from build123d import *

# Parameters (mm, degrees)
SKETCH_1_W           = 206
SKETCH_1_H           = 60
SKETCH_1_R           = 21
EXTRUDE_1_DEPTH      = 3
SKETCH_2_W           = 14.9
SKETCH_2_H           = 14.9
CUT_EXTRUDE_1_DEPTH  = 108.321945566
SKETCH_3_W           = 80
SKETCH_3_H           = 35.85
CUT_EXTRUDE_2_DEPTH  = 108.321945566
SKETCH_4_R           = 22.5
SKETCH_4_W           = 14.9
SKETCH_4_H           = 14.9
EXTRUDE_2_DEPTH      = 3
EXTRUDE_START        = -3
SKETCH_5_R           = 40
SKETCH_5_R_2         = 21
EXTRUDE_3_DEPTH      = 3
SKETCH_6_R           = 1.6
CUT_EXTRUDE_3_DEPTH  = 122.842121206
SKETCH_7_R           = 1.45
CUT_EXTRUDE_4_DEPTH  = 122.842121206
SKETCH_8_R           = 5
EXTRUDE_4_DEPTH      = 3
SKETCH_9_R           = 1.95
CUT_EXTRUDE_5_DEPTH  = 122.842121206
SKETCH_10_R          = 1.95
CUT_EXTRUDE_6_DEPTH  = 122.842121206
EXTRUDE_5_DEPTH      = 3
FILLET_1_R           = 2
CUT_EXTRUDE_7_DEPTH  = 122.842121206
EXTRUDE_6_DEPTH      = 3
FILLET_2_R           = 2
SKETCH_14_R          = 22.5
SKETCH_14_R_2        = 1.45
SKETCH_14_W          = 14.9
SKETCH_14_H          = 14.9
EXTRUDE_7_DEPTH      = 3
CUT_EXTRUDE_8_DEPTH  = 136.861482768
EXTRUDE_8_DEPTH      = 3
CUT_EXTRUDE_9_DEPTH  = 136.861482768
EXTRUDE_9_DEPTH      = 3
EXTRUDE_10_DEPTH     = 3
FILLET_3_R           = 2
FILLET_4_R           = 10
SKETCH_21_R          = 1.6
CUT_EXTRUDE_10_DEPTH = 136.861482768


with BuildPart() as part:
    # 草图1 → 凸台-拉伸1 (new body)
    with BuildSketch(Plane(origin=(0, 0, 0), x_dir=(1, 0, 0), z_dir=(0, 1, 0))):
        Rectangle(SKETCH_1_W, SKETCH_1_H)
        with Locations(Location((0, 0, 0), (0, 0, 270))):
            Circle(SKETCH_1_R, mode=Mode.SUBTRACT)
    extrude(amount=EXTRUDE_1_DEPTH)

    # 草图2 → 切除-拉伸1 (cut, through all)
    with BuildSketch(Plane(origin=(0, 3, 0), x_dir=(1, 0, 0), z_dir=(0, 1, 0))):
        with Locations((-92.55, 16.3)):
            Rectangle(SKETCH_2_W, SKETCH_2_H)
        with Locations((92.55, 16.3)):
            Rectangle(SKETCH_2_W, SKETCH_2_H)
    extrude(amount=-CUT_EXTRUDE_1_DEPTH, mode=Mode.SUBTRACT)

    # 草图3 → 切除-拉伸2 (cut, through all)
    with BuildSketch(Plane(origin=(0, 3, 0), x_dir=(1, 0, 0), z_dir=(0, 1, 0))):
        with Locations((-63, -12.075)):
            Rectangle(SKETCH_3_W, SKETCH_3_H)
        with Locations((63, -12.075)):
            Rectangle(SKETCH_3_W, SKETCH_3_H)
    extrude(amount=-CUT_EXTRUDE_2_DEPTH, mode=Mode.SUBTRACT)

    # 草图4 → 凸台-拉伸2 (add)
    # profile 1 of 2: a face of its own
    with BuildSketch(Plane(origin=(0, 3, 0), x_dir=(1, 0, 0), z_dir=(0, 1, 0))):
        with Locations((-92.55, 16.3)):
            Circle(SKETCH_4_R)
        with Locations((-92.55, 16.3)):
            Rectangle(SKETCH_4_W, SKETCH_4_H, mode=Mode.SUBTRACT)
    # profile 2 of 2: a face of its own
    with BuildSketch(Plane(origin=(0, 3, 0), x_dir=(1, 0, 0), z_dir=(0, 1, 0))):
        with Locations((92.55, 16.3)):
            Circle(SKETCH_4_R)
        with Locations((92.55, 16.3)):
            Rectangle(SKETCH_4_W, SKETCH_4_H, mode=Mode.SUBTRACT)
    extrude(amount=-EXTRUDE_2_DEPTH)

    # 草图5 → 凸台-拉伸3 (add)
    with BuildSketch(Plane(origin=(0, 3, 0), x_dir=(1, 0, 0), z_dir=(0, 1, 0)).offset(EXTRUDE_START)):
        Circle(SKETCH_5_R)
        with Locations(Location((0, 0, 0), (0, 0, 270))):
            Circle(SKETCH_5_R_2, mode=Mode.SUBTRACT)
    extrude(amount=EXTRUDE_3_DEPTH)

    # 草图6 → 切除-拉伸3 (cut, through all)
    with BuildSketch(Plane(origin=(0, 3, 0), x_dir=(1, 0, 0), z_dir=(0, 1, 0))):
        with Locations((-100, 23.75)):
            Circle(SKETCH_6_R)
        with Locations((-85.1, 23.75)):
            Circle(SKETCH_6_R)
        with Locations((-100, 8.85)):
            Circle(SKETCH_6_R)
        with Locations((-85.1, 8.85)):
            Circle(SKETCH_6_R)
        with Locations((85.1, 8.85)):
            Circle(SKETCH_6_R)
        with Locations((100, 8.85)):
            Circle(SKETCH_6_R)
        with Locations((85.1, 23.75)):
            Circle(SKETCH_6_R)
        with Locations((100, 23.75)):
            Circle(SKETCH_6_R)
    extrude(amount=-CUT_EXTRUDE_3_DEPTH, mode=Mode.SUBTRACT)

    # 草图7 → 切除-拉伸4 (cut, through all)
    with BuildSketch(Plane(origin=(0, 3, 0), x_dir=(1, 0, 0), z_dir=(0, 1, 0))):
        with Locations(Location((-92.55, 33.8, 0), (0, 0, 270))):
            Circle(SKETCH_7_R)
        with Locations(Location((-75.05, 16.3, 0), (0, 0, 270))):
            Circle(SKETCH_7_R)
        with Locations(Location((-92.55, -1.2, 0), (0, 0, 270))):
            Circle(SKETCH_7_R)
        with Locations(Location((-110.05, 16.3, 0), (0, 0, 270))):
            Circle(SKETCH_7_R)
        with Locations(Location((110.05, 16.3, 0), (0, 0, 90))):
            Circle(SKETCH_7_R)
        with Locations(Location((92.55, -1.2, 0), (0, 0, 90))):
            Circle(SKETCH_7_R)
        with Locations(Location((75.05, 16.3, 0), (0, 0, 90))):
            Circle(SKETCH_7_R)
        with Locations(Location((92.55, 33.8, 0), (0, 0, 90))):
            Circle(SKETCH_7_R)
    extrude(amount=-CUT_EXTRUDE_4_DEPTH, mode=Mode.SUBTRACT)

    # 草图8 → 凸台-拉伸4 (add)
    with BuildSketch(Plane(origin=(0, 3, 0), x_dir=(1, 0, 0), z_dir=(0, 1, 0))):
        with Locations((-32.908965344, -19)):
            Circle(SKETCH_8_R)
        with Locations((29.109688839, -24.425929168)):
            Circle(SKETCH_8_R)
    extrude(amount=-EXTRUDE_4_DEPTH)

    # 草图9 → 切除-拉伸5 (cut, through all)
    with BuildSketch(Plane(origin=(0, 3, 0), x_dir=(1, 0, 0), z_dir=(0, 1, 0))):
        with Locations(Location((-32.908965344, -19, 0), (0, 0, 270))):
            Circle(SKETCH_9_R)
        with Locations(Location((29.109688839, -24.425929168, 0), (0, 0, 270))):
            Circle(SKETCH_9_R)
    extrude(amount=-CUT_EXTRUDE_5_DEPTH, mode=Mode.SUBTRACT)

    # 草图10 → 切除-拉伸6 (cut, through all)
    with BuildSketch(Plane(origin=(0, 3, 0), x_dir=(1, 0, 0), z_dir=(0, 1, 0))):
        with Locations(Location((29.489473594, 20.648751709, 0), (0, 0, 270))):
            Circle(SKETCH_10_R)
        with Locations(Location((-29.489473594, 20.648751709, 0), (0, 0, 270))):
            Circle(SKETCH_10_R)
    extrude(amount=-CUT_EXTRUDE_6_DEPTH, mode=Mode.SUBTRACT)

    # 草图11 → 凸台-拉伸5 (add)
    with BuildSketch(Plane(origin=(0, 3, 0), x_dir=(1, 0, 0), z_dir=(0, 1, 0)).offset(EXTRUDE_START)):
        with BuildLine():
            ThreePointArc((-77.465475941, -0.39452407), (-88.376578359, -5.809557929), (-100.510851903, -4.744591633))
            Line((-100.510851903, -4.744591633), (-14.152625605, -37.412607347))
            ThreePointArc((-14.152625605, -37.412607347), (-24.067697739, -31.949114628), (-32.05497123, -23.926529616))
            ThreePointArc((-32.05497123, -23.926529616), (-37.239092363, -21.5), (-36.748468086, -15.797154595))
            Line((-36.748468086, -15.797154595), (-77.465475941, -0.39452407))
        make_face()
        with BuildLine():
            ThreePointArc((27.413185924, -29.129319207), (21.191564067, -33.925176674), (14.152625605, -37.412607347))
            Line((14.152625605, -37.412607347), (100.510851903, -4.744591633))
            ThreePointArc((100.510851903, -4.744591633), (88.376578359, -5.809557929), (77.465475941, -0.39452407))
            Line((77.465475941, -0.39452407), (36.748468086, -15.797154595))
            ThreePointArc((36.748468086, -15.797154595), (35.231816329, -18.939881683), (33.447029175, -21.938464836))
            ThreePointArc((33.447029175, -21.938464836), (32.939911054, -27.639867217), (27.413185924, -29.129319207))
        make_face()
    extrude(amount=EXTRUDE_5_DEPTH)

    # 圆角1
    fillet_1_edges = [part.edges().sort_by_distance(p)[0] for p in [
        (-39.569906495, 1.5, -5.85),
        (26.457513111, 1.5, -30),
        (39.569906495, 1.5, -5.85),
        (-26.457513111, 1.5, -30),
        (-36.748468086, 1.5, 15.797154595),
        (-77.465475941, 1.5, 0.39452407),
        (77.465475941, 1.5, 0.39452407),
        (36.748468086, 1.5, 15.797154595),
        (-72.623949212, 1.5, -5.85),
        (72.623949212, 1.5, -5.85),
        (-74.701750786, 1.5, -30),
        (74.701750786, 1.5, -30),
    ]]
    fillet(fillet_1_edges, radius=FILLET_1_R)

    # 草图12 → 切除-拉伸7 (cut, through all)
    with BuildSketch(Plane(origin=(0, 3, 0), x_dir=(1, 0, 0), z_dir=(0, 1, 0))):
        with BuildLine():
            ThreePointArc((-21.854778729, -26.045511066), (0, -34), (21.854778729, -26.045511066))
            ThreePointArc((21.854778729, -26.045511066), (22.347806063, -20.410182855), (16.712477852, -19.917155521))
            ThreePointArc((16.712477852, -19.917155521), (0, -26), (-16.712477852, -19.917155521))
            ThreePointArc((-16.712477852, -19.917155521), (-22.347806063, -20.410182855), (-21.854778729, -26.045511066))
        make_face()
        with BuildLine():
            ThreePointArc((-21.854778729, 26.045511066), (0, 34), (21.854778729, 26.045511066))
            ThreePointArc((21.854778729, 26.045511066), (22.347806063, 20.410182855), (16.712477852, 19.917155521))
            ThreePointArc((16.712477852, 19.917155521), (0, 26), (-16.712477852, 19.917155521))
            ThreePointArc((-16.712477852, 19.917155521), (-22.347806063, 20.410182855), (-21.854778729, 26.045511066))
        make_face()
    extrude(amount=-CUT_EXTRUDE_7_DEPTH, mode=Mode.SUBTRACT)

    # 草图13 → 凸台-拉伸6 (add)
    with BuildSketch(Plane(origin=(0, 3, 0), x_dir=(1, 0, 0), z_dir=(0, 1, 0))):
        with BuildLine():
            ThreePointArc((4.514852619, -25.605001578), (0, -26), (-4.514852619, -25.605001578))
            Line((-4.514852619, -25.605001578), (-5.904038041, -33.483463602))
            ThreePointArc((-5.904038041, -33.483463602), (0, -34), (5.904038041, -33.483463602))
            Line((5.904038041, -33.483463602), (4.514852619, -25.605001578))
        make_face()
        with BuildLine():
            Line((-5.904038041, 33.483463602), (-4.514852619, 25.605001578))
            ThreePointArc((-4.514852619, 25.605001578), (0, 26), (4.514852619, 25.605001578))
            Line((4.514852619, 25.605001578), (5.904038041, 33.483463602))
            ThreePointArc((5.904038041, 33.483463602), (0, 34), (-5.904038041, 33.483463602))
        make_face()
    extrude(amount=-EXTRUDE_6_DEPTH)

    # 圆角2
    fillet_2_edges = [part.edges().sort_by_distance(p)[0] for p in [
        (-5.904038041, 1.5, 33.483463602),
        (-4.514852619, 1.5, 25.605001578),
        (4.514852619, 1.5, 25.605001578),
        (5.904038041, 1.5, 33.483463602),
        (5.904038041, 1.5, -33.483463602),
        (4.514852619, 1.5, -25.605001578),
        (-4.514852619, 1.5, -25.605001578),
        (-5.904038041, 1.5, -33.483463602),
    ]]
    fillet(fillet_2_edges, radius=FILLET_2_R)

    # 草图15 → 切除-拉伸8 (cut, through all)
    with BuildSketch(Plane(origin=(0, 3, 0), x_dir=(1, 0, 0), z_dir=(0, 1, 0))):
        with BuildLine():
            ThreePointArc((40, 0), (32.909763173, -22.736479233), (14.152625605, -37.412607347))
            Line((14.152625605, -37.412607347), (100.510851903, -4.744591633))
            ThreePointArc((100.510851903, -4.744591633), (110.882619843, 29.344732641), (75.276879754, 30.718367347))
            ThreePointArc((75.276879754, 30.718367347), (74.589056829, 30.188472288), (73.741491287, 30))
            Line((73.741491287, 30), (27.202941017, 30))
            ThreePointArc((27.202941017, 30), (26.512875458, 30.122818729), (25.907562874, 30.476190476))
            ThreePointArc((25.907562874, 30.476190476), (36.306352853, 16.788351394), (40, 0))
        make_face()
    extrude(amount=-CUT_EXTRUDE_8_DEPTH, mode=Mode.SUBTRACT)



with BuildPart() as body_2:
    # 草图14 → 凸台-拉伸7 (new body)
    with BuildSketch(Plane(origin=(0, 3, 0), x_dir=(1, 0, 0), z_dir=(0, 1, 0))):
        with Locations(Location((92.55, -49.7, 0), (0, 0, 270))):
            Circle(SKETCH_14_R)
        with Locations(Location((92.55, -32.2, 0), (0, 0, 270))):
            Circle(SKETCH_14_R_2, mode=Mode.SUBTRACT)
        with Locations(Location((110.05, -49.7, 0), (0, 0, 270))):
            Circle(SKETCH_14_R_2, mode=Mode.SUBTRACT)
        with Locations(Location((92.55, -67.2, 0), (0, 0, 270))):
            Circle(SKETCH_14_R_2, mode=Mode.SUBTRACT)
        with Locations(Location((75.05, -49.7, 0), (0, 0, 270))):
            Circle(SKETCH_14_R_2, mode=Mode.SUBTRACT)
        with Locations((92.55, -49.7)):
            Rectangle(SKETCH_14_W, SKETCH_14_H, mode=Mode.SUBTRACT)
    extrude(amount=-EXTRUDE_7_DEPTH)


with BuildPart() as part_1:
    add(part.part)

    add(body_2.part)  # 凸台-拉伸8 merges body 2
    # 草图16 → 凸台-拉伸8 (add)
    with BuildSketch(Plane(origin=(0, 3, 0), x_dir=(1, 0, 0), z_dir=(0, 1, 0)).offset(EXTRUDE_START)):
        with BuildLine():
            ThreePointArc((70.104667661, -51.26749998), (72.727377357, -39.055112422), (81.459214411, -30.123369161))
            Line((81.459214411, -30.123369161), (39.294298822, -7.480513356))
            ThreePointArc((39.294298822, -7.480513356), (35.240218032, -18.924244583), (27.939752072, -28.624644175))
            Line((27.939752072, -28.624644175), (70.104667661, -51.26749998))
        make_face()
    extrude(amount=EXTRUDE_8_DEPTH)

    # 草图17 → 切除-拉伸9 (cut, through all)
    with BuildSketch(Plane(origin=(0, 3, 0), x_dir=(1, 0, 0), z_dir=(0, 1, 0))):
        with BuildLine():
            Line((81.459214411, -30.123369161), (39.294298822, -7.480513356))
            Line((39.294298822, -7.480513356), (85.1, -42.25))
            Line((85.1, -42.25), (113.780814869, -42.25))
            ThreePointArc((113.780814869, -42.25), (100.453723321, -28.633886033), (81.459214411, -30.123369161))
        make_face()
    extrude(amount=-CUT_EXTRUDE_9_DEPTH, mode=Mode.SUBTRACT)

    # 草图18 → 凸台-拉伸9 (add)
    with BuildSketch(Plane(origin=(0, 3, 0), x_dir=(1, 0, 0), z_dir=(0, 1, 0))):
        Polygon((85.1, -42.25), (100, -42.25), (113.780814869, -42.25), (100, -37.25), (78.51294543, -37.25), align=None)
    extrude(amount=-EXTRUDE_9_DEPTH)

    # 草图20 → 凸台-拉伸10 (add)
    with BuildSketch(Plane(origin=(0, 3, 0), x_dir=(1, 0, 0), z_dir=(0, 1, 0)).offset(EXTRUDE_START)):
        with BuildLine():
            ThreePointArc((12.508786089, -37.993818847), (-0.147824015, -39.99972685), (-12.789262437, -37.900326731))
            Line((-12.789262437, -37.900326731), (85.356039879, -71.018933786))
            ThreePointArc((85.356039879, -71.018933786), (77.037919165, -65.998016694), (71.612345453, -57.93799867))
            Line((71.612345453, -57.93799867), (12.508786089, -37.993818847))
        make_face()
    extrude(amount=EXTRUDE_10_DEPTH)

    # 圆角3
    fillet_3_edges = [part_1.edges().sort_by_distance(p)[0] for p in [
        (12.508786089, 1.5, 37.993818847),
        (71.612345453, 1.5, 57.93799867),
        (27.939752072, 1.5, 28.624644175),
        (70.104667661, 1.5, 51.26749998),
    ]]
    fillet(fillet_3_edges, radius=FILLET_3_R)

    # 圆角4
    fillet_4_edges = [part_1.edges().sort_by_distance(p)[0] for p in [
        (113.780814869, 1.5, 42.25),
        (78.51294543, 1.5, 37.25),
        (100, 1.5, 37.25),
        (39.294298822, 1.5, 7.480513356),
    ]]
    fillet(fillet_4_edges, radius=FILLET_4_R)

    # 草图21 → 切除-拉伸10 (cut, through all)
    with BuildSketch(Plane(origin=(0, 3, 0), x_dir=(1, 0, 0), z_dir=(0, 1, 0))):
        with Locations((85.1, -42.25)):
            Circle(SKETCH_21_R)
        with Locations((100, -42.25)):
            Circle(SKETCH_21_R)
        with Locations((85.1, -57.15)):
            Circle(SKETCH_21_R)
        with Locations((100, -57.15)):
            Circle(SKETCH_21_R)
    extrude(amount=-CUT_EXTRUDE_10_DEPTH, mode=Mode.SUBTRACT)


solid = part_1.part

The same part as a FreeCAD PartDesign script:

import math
import FreeCAD as App
import Part
import Sketcher

V = App.Vector
Q = App.Units.Quantity


def edges_at(feature, points):
    """Names of the edges that pass closest to the given points."""
    edges = feature.Shape.Edges
    near = lambda p: min(range(len(edges)), key=lambda i: edges[i].distToShape(Part.Vertex(*p))[0])
    return sorted({f"Edge{near(p) + 1}" for p in points})


def add_polygon(sketch, points):
    """Adds a closed chain of lines whose ends are joined by coincident constraints."""
    first, n = sketch.GeometryCount, len(points)
    for a, b in zip(points, points[1:] + points[:1]):
        sketch.addGeometry(Part.LineSegment(App.Vector(*a, 0), App.Vector(*b, 0)), False)
    for i in range(n):
        sketch.addConstraint(Sketcher.Constraint("Coincident", first + i, 2, first + (i + 1) % n, 1))

doc = App.newDocument("Part")
body = doc.addObject("PartDesign::Body", "Body")

sketch1 = body.newObject("Sketcher::SketchObject", "Sketch")
sketch1.AttachmentSupport = (doc.getObject("XZ_Plane"), [""])
sketch1.MapMode = "FlatFace"
add_polygon(sketch1, [(-103, -30), (-103, 30), (103, 30), (103, -30)])
sketch1.addGeometry(Part.Circle(V(0, 0, 0), V(0, 0, 1), 21), False)
sketch1.addConstraint(Sketcher.Constraint("Vertical", 0))
sketch1.addConstraint(Sketcher.Constraint("Horizontal", 1))
sketch1.addConstraint(Sketcher.Constraint("Vertical", 2))
sketch1.addConstraint(Sketcher.Constraint("Horizontal", 3))
sketch1.addConstraint(Sketcher.Constraint("Coincident", 4, 3, -1, 1))
sketch1.addConstraint(Sketcher.Constraint("Symmetric", 0, 2, 2, 2, -1, 1))
sketch1.addConstraint(Sketcher.Constraint("Diameter", 4, 42.0))
sketch1.addConstraint(Sketcher.Constraint("DistanceX", 1, 1, 1, 2, 206.0))
sketch1.addConstraint(Sketcher.Constraint("DistanceY", 0, 1, 0, 2, 60.0))
pad1 = body.newObject("PartDesign::Pad", "Pad")
pad1.Profile = sketch1
pad1.Length = 3
pad1.Reversed = True

sketch2 = body.newObject("Sketcher::SketchObject", "Sketch001")
sketch2.AttachmentSupport = (doc.getObject("XZ_Plane"), [""])
sketch2.MapMode = "FlatFace"
sketch2.AttachmentOffset = App.Placement(V(0, 0, -3), App.Rotation())
add_polygon(sketch2, [(-100, -24), (-100, -9), (-85, -9), (-85, -24)])
add_polygon(sketch2, [(85, -24), (85, -9), (100, -9), (100, -24)])
sketch2.addConstraint(Sketcher.Constraint("Vertical", 0))
sketch2.addConstraint(Sketcher.Constraint("Horizontal", 1))
sketch2.addConstraint(Sketcher.Constraint("Vertical", 2))
sketch2.addConstraint(Sketcher.Constraint("Horizontal", 3))
sketch2.addConstraint(Sketcher.Constraint("Vertical", 4))
sketch2.addConstraint(Sketcher.Constraint("Horizontal", 5))
sketch2.addConstraint(Sketcher.Constraint("Vertical", 6))
sketch2.addConstraint(Sketcher.Constraint("Horizontal", 7))
sketch2.addConstraint(Sketcher.Constraint("Symmetric", 1, 2, 4, 2, -2))
sketch2.addConstraint(Sketcher.Constraint("Symmetric", 3, 2, 6, 2, -2))
sketch2.addConstraint(Sketcher.Constraint("Equal", 7, 0))
sketch2.addConstraint(Sketcher.Constraint("DistanceX", 1, 1, 1, 2, 14.9))
sketch2.addConstraint(Sketcher.Constraint("DistanceX", 0, 2, -1, 1, 100.0))
sketch2.addConstraint(Sketcher.Constraint("DistanceY", 0, 2, -1, 1, 8.85))
pocket1 = body.newObject("PartDesign::Pocket", "Pocket")
pocket1.Profile = sketch2
pocket1.Type = "ThroughAll"
pocket1.Reversed = True

sketch3 = body.newObject("Sketcher::SketchObject", "Sketch002")
sketch3.AttachmentSupport = (doc.getObject("XZ_Plane"), [""])
sketch3.MapMode = "FlatFace"
sketch3.AttachmentOffset = App.Placement(V(0, 0, -3), App.Rotation())
add_polygon(sketch3, [(-103, -6), (-103, 30), (-23, 30), (-23, -6)])
add_polygon(sketch3, [(23, -6), (23, 30), (103, 30), (103, -6)])
sketch3.addConstraint(Sketcher.Constraint("Vertical", 0))
sketch3.addConstraint(Sketcher.Constraint("Horizontal", 1))
sketch3.addConstraint(Sketcher.Constraint("Vertical", 2))
sketch3.addConstraint(Sketcher.Constraint("Horizontal", 3))
sketch3.addConstraint(Sketcher.Constraint("Vertical", 4))
sketch3.addConstraint(Sketcher.Constraint("Horizontal", 5))
sketch3.addConstraint(Sketcher.Constraint("Vertical", 6))
sketch3.addConstraint(Sketcher.Constraint("Horizontal", 7))
sketch3.addConstraint(Sketcher.Constraint("Symmetric", 1, 2, 4, 2, -2))
sketch3.addConstraint(Sketcher.Constraint("Symmetric", 3, 2, 6, 2, -2))
sketch3.addConstraint(Sketcher.Constraint("DistanceX", 1, 1, 1, 2, 80.0))
sketch3.addConstraint(Sketcher.Constraint("DistanceX", 0, 2, -1, 1, 103.0))
sketch3.addConstraint(Sketcher.Constraint("DistanceY", -1, 1, 0, 2, 30.0))
sketch3.addConstraint(Sketcher.Constraint("DistanceY", 0, 1, 0, 2, 35.85))
pocket2 = body.newObject("PartDesign::Pocket", "Pocket001")
pocket2.Profile = sketch3
pocket2.Type = "ThroughAll"
pocket2.Reversed = True

sketch4 = body.newObject("Sketcher::SketchObject", "Sketch003")
sketch4.AttachmentSupport = (doc.getObject("XZ_Plane"), [""])
sketch4.MapMode = "FlatFace"
sketch4.AttachmentOffset = App.Placement(V(0, 0, -3), App.Rotation())
sketch4.addGeometry(Part.Circle(V(-93, -16, 0), V(0, 0, 1), 22), False)
add_polygon(sketch4, [(-85, -9), (-100, -9), (-100, -24), (-85, -24)])
sketch4.addGeometry(Part.Circle(V(93, -16, 0), V(0, 0, 1), 22), False)
add_polygon(sketch4, [(100, -9), (85, -9), (85, -24), (100, -24)])
sketch4.addConstraint(Sketcher.Constraint("Horizontal", 1))
sketch4.addConstraint(Sketcher.Constraint("Vertical", 2))
sketch4.addConstraint(Sketcher.Constraint("Horizontal", 3))
sketch4.addConstraint(Sketcher.Constraint("Vertical", 4))
sketch4.addConstraint(Sketcher.Constraint("Horizontal", 6))
sketch4.addConstraint(Sketcher.Constraint("Vertical", 7))
sketch4.addConstraint(Sketcher.Constraint("Horizontal", 8))
sketch4.addConstraint(Sketcher.Constraint("Vertical", 9))
sketch4.addConstraint(Sketcher.Constraint("Equal", 0, 5))
sketch4.addConstraint(Sketcher.Constraint("Symmetric", 0, 3, 5, 3, -2))
sketch4.addConstraint(Sketcher.Constraint("Symmetric", 4, 2, 6, 2, -2))
sketch4.addConstraint(Sketcher.Constraint("Symmetric", 2, 2, 8, 2, -2))
sketch4.addConstraint(Sketcher.Constraint("Equal", 8, 2))
sketch4.addConstraint(Sketcher.Constraint("Diameter", 0, 45.0))
sketch4.addConstraint(Sketcher.Constraint("DistanceX", 1, 2, 1, 1, 14.9))
sketch4.addConstraint(Sketcher.Constraint("DistanceX", 1, 2, -1, 1, 100.0))
sketch4.addConstraint(Sketcher.Constraint("DistanceY", 0, 3, -1, 1, 16.3))
sketch4.addConstraint(Sketcher.Constraint("DistanceX", 0, 3, 5, 3, 185.1))
sketch4.addConstraint(Sketcher.Constraint("DistanceY", 1, 2, -1, 1, 8.85))
pad2 = body.newObject("PartDesign::Pad", "Pad001")
pad2.Profile = sketch4
pad2.Length = 3

sketch5 = body.newObject("Sketcher::SketchObject", "Sketch004")
sketch5.AttachmentSupport = (doc.getObject("XZ_Plane"), [""])
sketch5.MapMode = "FlatFace"
sketch5.addGeometry(Part.Circle(V(0, 0, 0), V(0, 0, 1), 40), False)
sketch5.addGeometry(Part.Circle(V(0, 0, 0), V(0, 0, 1), 21), False)
sketch5.addConstraint(Sketcher.Constraint("Coincident", 0, 3, -1, 1))
sketch5.addConstraint(Sketcher.Constraint("Coincident", 1, 3, -1, 1))
sketch5.addConstraint(Sketcher.Constraint("Diameter", 0, 80.0))
sketch5.addConstraint(Sketcher.Constraint("Diameter", 1, 42.0))
pad3 = body.newObject("PartDesign::Pad", "Pad002")
pad3.Profile = sketch5
pad3.Length = 3
pad3.Reversed = True

sketch6 = body.newObject("Sketcher::SketchObject", "Sketch005")
sketch6.AttachmentSupport = (doc.getObject("XZ_Plane"), [""])
sketch6.MapMode = "FlatFace"
sketch6.AttachmentOffset = App.Placement(V(0, 0, -3), App.Rotation())
sketch6.addGeometry(Part.Circle(V(-100, -23.8, 0), V(0, 0, 1), 1.6), False)
sketch6.addGeometry(Part.Circle(V(-85.1, -23.8, 0), V(0, 0, 1), 1.6), False)
sketch6.addGeometry(Part.Circle(V(-100, -8.8, 0), V(0, 0, 1), 1.6), False)
sketch6.addGeometry(Part.Circle(V(-85.1, -8.8, 0), V(0, 0, 1), 1.6), False)
sketch6.addGeometry(Part.Circle(V(85.1, -8.8, 0), V(0, 0, 1), 1.6), False)
sketch6.addGeometry(Part.Circle(V(100, -8.8, 0), V(0, 0, 1), 1.6), False)
sketch6.addGeometry(Part.Circle(V(85.1, -23.8, 0), V(0, 0, 1), 1.6), False)
sketch6.addGeometry(Part.Circle(V(100, -23.8, 0), V(0, 0, 1), 1.6), False)
sketch6.addConstraint(Sketcher.Constraint("Equal", 0, 1))
sketch6.addConstraint(Sketcher.Constraint("Equal", 1, 2))
sketch6.addConstraint(Sketcher.Constraint("Equal", 2, 3))
sketch6.addConstraint(Sketcher.Constraint("Equal", 3, 4))
sketch6.addConstraint(Sketcher.Constraint("Equal", 4, 5))
sketch6.addConstraint(Sketcher.Constraint("Equal", 5, 6))
sketch6.addConstraint(Sketcher.Constraint("Equal", 6, 7))
sketch6.addConstraint(Sketcher.Constraint("Symmetric", 3, 3, 4, 3, -2))
sketch6.addConstraint(Sketcher.Constraint("Symmetric", 2, 3, 5, 3, -2))
sketch6.addConstraint(Sketcher.Constraint("Symmetric", 1, 3, 6, 3, -2))
sketch6.addConstraint(Sketcher.Constraint("Symmetric", 0, 3, 7, 3, -2))
sketch6.addConstraint(Sketcher.Constraint("Horizontal", 0, 3, 1, 3))
sketch6.addConstraint(Sketcher.Constraint("Horizontal", 2, 3, 3, 3))
sketch6.addConstraint(Sketcher.Constraint("Vertical", 0, 3, 2, 3))
sketch6.addConstraint(Sketcher.Constraint("Vertical", 1, 3, 3, 3))
sketch6.addConstraint(Sketcher.Constraint("Diameter", 0, 3.2))
sketch6.addConstraint(Sketcher.Constraint("DistanceX", 0, 3, -1, 1, 100.0))
sketch6.addConstraint(Sketcher.Constraint("DistanceX", 1, 3, -1, 1, 85.1))
sketch6.addConstraint(Sketcher.Constraint("DistanceY", 0, 3, 2, 3, 14.9))
sketch6.addConstraint(Sketcher.Constraint("DistanceY", 0, 3, -1, 1, 23.75))
pocket3 = body.newObject("PartDesign::Pocket", "Pocket002")
pocket3.Profile = sketch6
pocket3.Type = "ThroughAll"
pocket3.Reversed = True

sketch7 = body.newObject("Sketcher::SketchObject", "Sketch006")
sketch7.AttachmentSupport = (doc.getObject("XZ_Plane"), [""])
sketch7.MapMode = "FlatFace"
sketch7.AttachmentOffset = App.Placement(V(0, 0, -3), App.Rotation())
sketch7.addGeometry(Part.Circle(V(-92.5, -33.8, 0), V(0, 0, 1), 1.4), False)
sketch7.addGeometry(Part.Circle(V(-75, -16.3, 0), V(0, 0, 1), 1.4), False)
sketch7.addGeometry(Part.Circle(V(-92.5, 1.2, 0), V(0, 0, 1), 1.4), False)
sketch7.addGeometry(Part.Circle(V(-110, -16.3, 0), V(0, 0, 1), 1.4), False)
sketch7.addGeometry(Part.Circle(V(110, -16.3, 0), V(0, 0, 1), 1.4), False)
sketch7.addGeometry(Part.Circle(V(92.5, 1.2, 0), V(0, 0, 1), 1.4), False)
sketch7.addGeometry(Part.Circle(V(75, -16.3, 0), V(0, 0, 1), 1.4), False)
sketch7.addGeometry(Part.Circle(V(92.5, -33.8, 0), V(0, 0, 1), 1.4), False)
sketch7.addConstraint(Sketcher.Constraint("Equal", 0, 1))
sketch7.addConstraint(Sketcher.Constraint("Equal", 1, 2))
sketch7.addConstraint(Sketcher.Constraint("Equal", 2, 3))
sketch7.addConstraint(Sketcher.Constraint("Equal", 3, 4))
sketch7.addConstraint(Sketcher.Constraint("Equal", 4, 5))
sketch7.addConstraint(Sketcher.Constraint("Equal", 5, 6))
sketch7.addConstraint(Sketcher.Constraint("Equal", 6, 7))
sketch7.addConstraint(Sketcher.Constraint("Symmetric", 3, 3, 4, 3, -2))
sketch7.addConstraint(Sketcher.Constraint("Symmetric", 2, 3, 5, 3, -2))
sketch7.addConstraint(Sketcher.Constraint("Symmetric", 1, 3, 6, 3, -2))
sketch7.addConstraint(Sketcher.Constraint("Symmetric", 0, 3, 7, 3, -2))
sketch7.addConstraint(Sketcher.Constraint("Horizontal", 1, 3, 3, 3))
sketch7.addConstraint(Sketcher.Constraint("Vertical", 0, 3, 2, 3))
sketch7.addConstraint(Sketcher.Constraint("Diameter", 0, 2.9))
sketch7.addConstraint(Sketcher.Constraint("DistanceY", 0, 3, 2, 3, 35.0))
sketch7.addConstraint(Sketcher.Constraint("DistanceX", 3, 3, 1, 3, 35.0))
sketch7.addConstraint(Sketcher.Constraint("DistanceY", 0, 3, -1, 1, 33.8))
sketch7.addConstraint(Sketcher.Constraint("DistanceY", 1, 3, -1, 1, 16.3))
sketch7.addConstraint(Sketcher.Constraint("DistanceX", 0, 3, 1, 3, 17.5))
sketch7.addConstraint(Sketcher.Constraint("DistanceX", 1, 3, 4, 3, 185.1))
pocket4 = body.newObject("PartDesign::Pocket", "Pocket003")
pocket4.Profile = sketch7
pocket4.Type = "ThroughAll"
pocket4.Reversed = True

sketch8 = body.newObject("Sketcher::SketchObject", "Sketch007")
sketch8.AttachmentSupport = (doc.getObject("XZ_Plane"), [""])
sketch8.MapMode = "FlatFace"
sketch8.AttachmentOffset = App.Placement(V(0, 0, -3), App.Rotation())
sketch8.addGeometry(Part.Circle(V(-33, 19, 0), V(0, 0, 1), 5), False)
sketch8.addGeometry(Part.Circle(V(29, 24, 0), V(0, 0, 1), 5), False)
sketch8.addConstraint(Sketcher.Constraint("Equal", 0, 1))
sketch8.addConstraint(Sketcher.Constraint("Diameter", 0, 10.0))
sketch8.addConstraint(Sketcher.Constraint("DistanceY", -1, 1, 0, 3, 19.0))
sketch8.addConstraint(Sketcher.Constraint("DistanceX", -1, 1, 1, 3, 29.109689))
sketch8.addConstraint(Sketcher.Constraint("DistanceY", -1, 1, 1, 3, 24.425929))
sketch8.addConstraint(Sketcher.Constraint("DistanceX", 0, 3, -1, 1, 32.908965))
pad4 = body.newObject("PartDesign::Pad", "Pad003")
pad4.Profile = sketch8
pad4.Length = 3

sketch9 = body.newObject("Sketcher::SketchObject", "Sketch008")
sketch9.AttachmentSupport = (doc.getObject("XZ_Plane"), [""])
sketch9.MapMode = "FlatFace"
sketch9.AttachmentOffset = App.Placement(V(0, 0, -3), App.Rotation())
sketch9.addGeometry(Part.Circle(V(-32.9, 19, 0), V(0, 0, 1), 1.9), False)
sketch9.addGeometry(Part.Circle(V(29.1, 24.4, 0), V(0, 0, 1), 1.9), False)
sketch9.addConstraint(Sketcher.Constraint("Equal", 0, 1))
sketch9.addConstraint(Sketcher.Constraint("Diameter", 0, 3.9))
sketch9.addConstraint(Sketcher.Constraint("DistanceY", -1, 1, 0, 3, 19.0))
sketch9.addConstraint(Sketcher.Constraint("DistanceX", -1, 1, 1, 3, 29.109689))
sketch9.addConstraint(Sketcher.Constraint("DistanceY", -1, 1, 1, 3, 24.425929))
sketch9.addConstraint(Sketcher.Constraint("DistanceX", 0, 3, -1, 1, 32.908965))
pocket5 = body.newObject("PartDesign::Pocket", "Pocket004")
pocket5.Profile = sketch9
pocket5.Type = "ThroughAll"
pocket5.Reversed = True

sketch10 = body.newObject("Sketcher::SketchObject", "Sketch009")
sketch10.AttachmentSupport = (doc.getObject("XZ_Plane"), [""])
sketch10.MapMode = "FlatFace"
sketch10.AttachmentOffset = App.Placement(V(0, 0, -3), App.Rotation())
sketch10.addGeometry(Part.Circle(V(29.5, -20.6, 0), V(0, 0, 1), 1.9), False)
sketch10.addGeometry(Part.Circle(V(-29.5, -20.6, 0), V(0, 0, 1), 1.9), False)
sketch10.addConstraint(Sketcher.Constraint("Equal", 0, 1))
sketch10.addConstraint(Sketcher.Constraint("Symmetric", 0, 3, 1, 3, -2))
sketch10.addConstraint(Sketcher.Constraint("Diameter", 0, 3.9))
sketch10.addConstraint(Sketcher.Constraint("DistanceY", 0, 3, -1, 1, 20.648752))
sketch10.addConstraint(Sketcher.Constraint("DistanceX", -1, 1, 0, 3, 29.489474))
pocket6 = body.newObject("PartDesign::Pocket", "Pocket005")
pocket6.Profile = sketch10
pocket6.Type = "ThroughAll"
pocket6.Reversed = True

sketch11 = body.newObject("Sketcher::SketchObject", "Sketch010")
sketch11.AttachmentSupport = (doc.getObject("XZ_Plane"), [""])
sketch11.MapMode = "FlatFace"
sketch11.addGeometry(Part.ArcOfCircle(Part.Circle(V(-93, -16, 0), V(0, 0, 1), 23), math.radians(48), math.radians(111)), False)
sketch11.addGeometry(Part.LineSegment(V(-101, 5, 0), V(-14, 37, 0)), False)
sketch11.addGeometry(Part.ArcOfCircle(Part.Circle(V(0, 0, 0), V(0, 0, 1), 40), math.radians(111), math.radians(143)), False)
sketch11.addGeometry(Part.ArcOfCircle(Part.Circle(V(-33, 19, 0), V(0, 0, 1), 5), math.radians(80), math.radians(220)), False)
sketch11.addGeometry(Part.LineSegment(V(-37, 16, 0), V(-77, 0, 0)), False)
sketch11.addGeometry(Part.ArcOfCircle(Part.Circle(V(0, 0, 0), V(0, 0, 1), 40), math.radians(47), math.radians(69)), False)
sketch11.addGeometry(Part.LineSegment(V(14, 37, 0), V(101, 5, 0)), False)
sketch11.addGeometry(Part.ArcOfCircle(Part.Circle(V(93, -16, 0), V(0, 0, 1), 23), math.radians(69), math.radians(132)), False)
sketch11.addGeometry(Part.LineSegment(V(77, 0, 0), V(37, 16, 0)), False)
sketch11.addGeometry(Part.ArcOfCircle(Part.Circle(V(0, 0, 0), V(0, 0, 1), 40), math.radians(23.26), math.radians(33.26)), False)
sketch11.addGeometry(Part.ArcOfCircle(Part.Circle(V(29, 24, 0), V(0, 0, 1), 5), math.radians(-30), math.radians(110)), False)
sketch11.addConstraint(Sketcher.Constraint("Tangent", 0, 2, 1, 1))
sketch11.addConstraint(Sketcher.Constraint("Tangent", 1, 2, 2, 1))
sketch11.addConstraint(Sketcher.Constraint("Coincident", 2, 2, 3, 1))
sketch11.addConstraint(Sketcher.Constraint("Coincident", 3, 2, 4, 1))
sketch11.addConstraint(Sketcher.Constraint("Coincident", 4, 2, 0, 1))
sketch11.addConstraint(Sketcher.Constraint("Tangent", 5, 2, 6, 1))
sketch11.addConstraint(Sketcher.Constraint("Tangent", 6, 2, 7, 1))
sketch11.addConstraint(Sketcher.Constraint("Coincident", 7, 2, 8, 1))
sketch11.addConstraint(Sketcher.Constraint("Coincident", 8, 2, 9, 1))
sketch11.addConstraint(Sketcher.Constraint("Coincident", 9, 2, 10, 1))
sketch11.addConstraint(Sketcher.Constraint("Coincident", 10, 2, 5, 1))
sketch11.addConstraint(Sketcher.Constraint("Coincident", 2, 3, -1, 1))
sketch11.addConstraint(Sketcher.Constraint("Coincident", 5, 3, -1, 1))
sketch11.addConstraint(Sketcher.Constraint("Coincident", 9, 3, -1, 1))
sketch11.addConstraint(Sketcher.Constraint("Equal", 2, 5))
sketch11.addConstraint(Sketcher.Constraint("Equal", 0, 7))
sketch11.addConstraint(Sketcher.Constraint("Equal", 5, 9))
sketch11.addConstraint(Sketcher.Constraint("Equal", 3, 10))
sketch11.addConstraint(Sketcher.Constraint("Symmetric", 0, 3, 7, 3, -2))
sketch11.addConstraint(Sketcher.Constraint("Symmetric", 3, 2, 8, 2, -2))
sketch11.addConstraint(Sketcher.Constraint("Parallel", 1, 4))
sketch11.addConstraint(Sketcher.Constraint("Parallel", 6, 8))
sketch11.addConstraint(Sketcher.Constraint("Radius", 2, 40.0))
sketch11.addConstraint(Sketcher.Constraint("Radius", 3, 5.0))
sketch11.addConstraint(Sketcher.Constraint("Radius", 0, 22.5))
sketch11.addConstraint(Sketcher.Constraint("DistanceY", -1, 1, 3, 3, 19.0))
sketch11.addConstraint(Sketcher.Constraint("DistanceY", 0, 3, -1, 1, 16.3))
sketch11.addConstraint(Sketcher.Constraint("DistanceX", 0, 3, 7, 3, 185.1))
sketch11.addConstraint(Sketcher.Constraint("DistanceX", -1, 1, 10, 3, 29.109689))
sketch11.addConstraint(Sketcher.Constraint("DistanceY", -1, 1, 10, 3, 24.425929))
sketch11.addConstraint(Sketcher.Constraint("DistanceX", 2, 2, -1, 1, 32.054971))
pad5 = body.newObject("PartDesign::Pad", "Pad004")
pad5.Profile = sketch11
pad5.Length = 3
pad5.Reversed = True
doc.recompute()

fillet = body.newObject("PartDesign::Fillet", "Fillet")
fillet.Base = (pad5, edges_at(pad5, [
    (-39.57, 1.5, -5.85),
    (26.458, 1.5, -30),
    (39.57, 1.5, -5.85),
    (-26.458, 1.5, -30),
    (-36.748, 1.5, 15.797),
    (-77.465, 1.5, 0.395),
    (77.465, 1.5, 0.395),
    (36.748, 1.5, 15.797),
    (-72.624, 1.5, -5.85),
    (72.624, 1.5, -5.85),
    (-74.702, 1.5, -30),
    (74.702, 1.5, -30),
]))
fillet.Radius = 2

sketch12 = body.newObject("Sketcher::SketchObject", "Sketch011")
sketch12.AttachmentSupport = (doc.getObject("XZ_Plane"), [""])
sketch12.MapMode = "FlatFace"
sketch12.AttachmentOffset = App.Placement(V(0, 0, -3), App.Rotation())
sketch12.addGeometry(Part.ArcOfCircle(Part.Circle(V(0, 0, 0), V(0, 0, 1), 34), math.radians(50), math.radians(130)), False)
sketch12.addGeometry(Part.ArcOfCircle(Part.Circle(V(19.3, 23, 0), V(0, 0, 1), 4), math.radians(-130), math.radians(50)), False)
sketch12.addGeometry(Part.ArcOfCircle(Part.Circle(V(0, 0, 0), V(0, 0, 1), 26), math.radians(50), math.radians(130)), False)
sketch12.addGeometry(Part.ArcOfCircle(Part.Circle(V(-19.3, 23, 0), V(0, 0, 1), 4), math.radians(130), math.radians(310)), False)
sketch12.addGeometry(Part.ArcOfCircle(Part.Circle(V(0, 0, 0), V(0, 0, 1), 34), math.radians(-130), math.radians(-50)), False)
sketch12.addGeometry(Part.ArcOfCircle(Part.Circle(V(-19.3, -23, 0), V(0, 0, 1), 4), math.radians(50), math.radians(230)), False)
sketch12.addGeometry(Part.ArcOfCircle(Part.Circle(V(0, 0, 0), V(0, 0, 1), 26), math.radians(-130), math.radians(-50)), False)
sketch12.addGeometry(Part.ArcOfCircle(Part.Circle(V(19.3, -23, 0), V(0, 0, 1), 4), math.radians(-50), math.radians(130)), False)
sketch12.addConstraint(Sketcher.Constraint("Tangent", 0, 1, 1, 2))
sketch12.addConstraint(Sketcher.Constraint("Tangent", 1, 1, 2, 1))
sketch12.addConstraint(Sketcher.Constraint("Tangent", 2, 2, 3, 2))
sketch12.addConstraint(Sketcher.Constraint("Tangent", 3, 1, 0, 2))
sketch12.addConstraint(Sketcher.Constraint("Tangent", 4, 1, 5, 2))
sketch12.addConstraint(Sketcher.Constraint("Tangent", 5, 1, 6, 1))
sketch12.addConstraint(Sketcher.Constraint("Tangent", 6, 2, 7, 2))
sketch12.addConstraint(Sketcher.Constraint("Tangent", 7, 1, 4, 2))
sketch12.addConstraint(Sketcher.Constraint("Coincident", 0, 3, -1, 1))
sketch12.addConstraint(Sketcher.Constraint("Coincident", 2, 3, -1, 1))
sketch12.addConstraint(Sketcher.Constraint("Coincident", 4, 3, -1, 1))
sketch12.addConstraint(Sketcher.Constraint("Coincident", 6, 3, -1, 1))
sketch12.addConstraint(Sketcher.Constraint("Equal", 0, 4))
sketch12.addConstraint(Sketcher.Constraint("Equal", 3, 5))
sketch12.addConstraint(Sketcher.Constraint("Horizontal", 1, 3, 3, 3))
sketch12.addConstraint(Sketcher.Constraint("Horizontal", 5, 3, 7, 3))
sketch12.addConstraint(Sketcher.Constraint("Vertical", 3, 3, 5, 3))
sketch12.addConstraint(Sketcher.Constraint("Radius", 0, 34.0))
sketch12.addConstraint(Sketcher.Constraint("Radius", 1, 4.0))
sketch12.addConstraint(Sketcher.Constraint("DistanceX", 1, 1, 0, 1, 5.142301))
pocket7 = body.newObject("PartDesign::Pocket", "Pocket006")
pocket7.Profile = sketch12
pocket7.Type = "ThroughAll"
pocket7.Reversed = True

sketch13 = body.newObject("Sketcher::SketchObject", "Sketch012")
sketch13.AttachmentSupport = (doc.getObject("XZ_Plane"), [""])
sketch13.MapMode = "FlatFace"
sketch13.AttachmentOffset = App.Placement(V(0, 0, -3), App.Rotation())
sketch13.addGeometry(Part.ArcOfCircle(Part.Circle(V(0, 0, 0), V(0, 0, 1), 26), math.radians(80), math.radians(100)), False)
sketch13.addGeometry(Part.LineSegment(V(-5, 26, 0), V(-6, 33, 0)), False)
sketch13.addGeometry(Part.ArcOfCircle(Part.Circle(V(0, 0, 0), V(0, 0, 1), 34), math.radians(80), math.radians(100)), False)
sketch13.addGeometry(Part.LineSegment(V(6, 33, 0), V(5, 26, 0)), False)
sketch13.addGeometry(Part.LineSegment(V(-6, -33, 0), V(-5, -26, 0)), False)
sketch13.addGeometry(Part.ArcOfCircle(Part.Circle(V(0, 0, 0), V(0, 0, 1), 26), math.radians(-100), math.radians(-80)), False)
sketch13.addGeometry(Part.LineSegment(V(5, -26, 0), V(6, -33, 0)), False)
sketch13.addGeometry(Part.ArcOfCircle(Part.Circle(V(0, 0, 0), V(0, 0, 1), 34), math.radians(-100), math.radians(-80)), False)
sketch13.addConstraint(Sketcher.Constraint("Coincident", 0, 2, 1, 1))
sketch13.addConstraint(Sketcher.Constraint("Coincident", 1, 2, 2, 2))
sketch13.addConstraint(Sketcher.Constraint("Coincident", 2, 1, 3, 1))
sketch13.addConstraint(Sketcher.Constraint("Coincident", 3, 2, 0, 1))
sketch13.addConstraint(Sketcher.Constraint("Coincident", 4, 2, 5, 1))
sketch13.addConstraint(Sketcher.Constraint("Coincident", 5, 2, 6, 1))
sketch13.addConstraint(Sketcher.Constraint("Coincident", 6, 2, 7, 2))
sketch13.addConstraint(Sketcher.Constraint("Coincident", 7, 1, 4, 1))
sketch13.addConstraint(Sketcher.Constraint("Coincident", 0, 3, -1, 1))
sketch13.addConstraint(Sketcher.Constraint("Coincident", 2, 3, -1, 1))
sketch13.addConstraint(Sketcher.Constraint("Coincident", 5, 3, -1, 1))
sketch13.addConstraint(Sketcher.Constraint("Coincident", 7, 3, -1, 1))
sketch13.addConstraint(Sketcher.Constraint("Equal", 0, 5))
sketch13.addConstraint(Sketcher.Constraint("Equal", 2, 7))
sketch13.addConstraint(Sketcher.Constraint("Parallel", 3, 4))
sketch13.addConstraint(Sketcher.Constraint("Parallel", 1, 6))
sketch13.addConstraint(Sketcher.Constraint("Horizontal", 1, 2, 2, 1))
sketch13.addConstraint(Sketcher.Constraint("Horizontal", 0, 2, 3, 2))
sketch13.addConstraint(Sketcher.Constraint("Horizontal", 4, 2, 5, 2))
sketch13.addConstraint(Sketcher.Constraint("Vertical", 0, 2, 4, 2))
sketch13.addConstraint(Sketcher.Constraint("Radius", 0, 26.0))
sketch13.addConstraint(Sketcher.Constraint("Radius", 2, 34.0))
sketch13.addConstraint(Sketcher.Constraint("Angle", 1, Q("100 deg")))
sketch13.addConstraint(Sketcher.Constraint("DistanceY", -1, 1, 0, 2, 25.605002))
pad6 = body.newObject("PartDesign::Pad", "Pad005")
pad6.Profile = sketch13
pad6.Length = 3
doc.recompute()

fillet2 = body.newObject("PartDesign::Fillet", "Fillet001")
fillet2.Base = (pad6, edges_at(pad6, [
    (-5.904, 1.5, 33.483),
    (-4.515, 1.5, 25.605),
    (4.515, 1.5, 25.605),
    (5.904, 1.5, 33.483),
    (5.904, 1.5, -33.483),
    (4.515, 1.5, -25.605),
    (-4.515, 1.5, -25.605),
    (-5.904, 1.5, -33.483),
]))
fillet2.Radius = 2

sketch14 = body.newObject("Sketcher::SketchObject", "Sketch013")
sketch14.AttachmentSupport = (doc.getObject("XZ_Plane"), [""])
sketch14.MapMode = "FlatFace"
sketch14.AttachmentOffset = App.Placement(V(0, 0, -3), App.Rotation())
sketch14.addGeometry(Part.ArcOfCircle(Part.Circle(V(0, 0, 0), V(0, 0, 1), 40), math.radians(0), math.radians(69)), False)
sketch14.addGeometry(Part.LineSegment(V(14.2, 37.4, 0), V(100.5, 4.7, 0)), False)
sketch14.addGeometry(Part.ArcOfCircle(Part.Circle(V(92.5, -16.3, 0), V(0, 0, 1), 22.5), math.radians(-140), math.radians(69)), False)
sketch14.addGeometry(Part.ArcOfCircle(Part.Circle(V(73.7, -32, 0), V(0, 0, 1), 2), math.radians(40), math.radians(90)), False)
sketch14.addGeometry(Part.LineSegment(V(73.7, -30, 0), V(27.2, -30, 0)), False)
sketch14.addGeometry(Part.ArcOfCircle(Part.Circle(V(27.2, -32, 0), V(0, 0, 1), 2), math.radians(90), math.radians(130)), False)
sketch14.addGeometry(Part.ArcOfCircle(Part.Circle(V(0, 0, 0), V(0, 0, 1), 40), math.radians(-50), math.radians(0)), False)
sketch14.addConstraint(Sketcher.Constraint("Tangent", 0, 2, 1, 1))
sketch14.addConstraint(Sketcher.Constraint("Tangent", 1, 2, 2, 2))
sketch14.addConstraint(Sketcher.Constraint("Tangent", 2, 1, 3, 1))
sketch14.addConstraint(Sketcher.Constraint("Tangent", 3, 2, 4, 1))
sketch14.addConstraint(Sketcher.Constraint("Tangent", 4, 2, 5, 1))
sketch14.addConstraint(Sketcher.Constraint("Tangent", 5, 2, 6, 1))
sketch14.addConstraint(Sketcher.Constraint("Tangent", 6, 2, 0, 1))
sketch14.addConstraint(Sketcher.Constraint("Horizontal", 4))
sketch14.addConstraint(Sketcher.Constraint("Coincident", 0, 3, -1, 1))
sketch14.addConstraint(Sketcher.Constraint("Equal", 3, 5))
sketch14.addConstraint(Sketcher.Constraint("Equal", 0, 6))
sketch14.addConstraint(Sketcher.Constraint("PointOnObject", 6, 2, -1))
sketch14.addConstraint(Sketcher.Constraint("Radius", 0, 40.0))
sketch14.addConstraint(Sketcher.Constraint("Radius", 3, 2.0))
sketch14.addConstraint(Sketcher.Constraint("Radius", 2, 22.5))
sketch14.addConstraint(Sketcher.Constraint("DistanceY", 3, 3, -1, 1, 32.0))
sketch14.addConstraint(Sketcher.Constraint("DistanceY", 2, 3, -1, 1, 16.3))
sketch14.addConstraint(Sketcher.Constraint("DistanceX", -1, 1, 2, 3, 92.55))
pocket8 = body.newObject("PartDesign::Pocket", "Pocket007")
pocket8.Profile = sketch14
pocket8.Type = "ThroughAll"
pocket8.Reversed = True
body2 = doc.addObject("PartDesign::Body", "Body001")

sketch15 = body2.newObject("Sketcher::SketchObject", "Sketch014")
sketch15.AttachmentSupport = (doc.getObject("XZ_Plane001"), [""])
sketch15.MapMode = "FlatFace"
sketch15.AttachmentOffset = App.Placement(V(0, 0, -3), App.Rotation())
sketch15.addGeometry(Part.Circle(V(92.5, 49.7, 0), V(0, 0, 1), 22.5), False)
sketch15.addGeometry(Part.Circle(V(75, 49.7, 0), V(0, 0, 1), 1.4), False)
sketch15.addGeometry(Part.Circle(V(92.5, 32.2, 0), V(0, 0, 1), 1.4), False)
add_polygon(sketch15, [(100, 57.1), (85.1, 57.1), (85.1, 42.2), (100, 42.2)])
sketch15.addGeometry(Part.Circle(V(110, 49.7, 0), V(0, 0, 1), 1.4), False)
sketch15.addGeometry(Part.Circle(V(92.5, 67.2, 0), V(0, 0, 1), 1.4), False)
sketch15.addConstraint(Sketcher.Constraint("Horizontal", 3))
sketch15.addConstraint(Sketcher.Constraint("Vertical", 4))
sketch15.addConstraint(Sketcher.Constraint("Horizontal", 5))
sketch15.addConstraint(Sketcher.Constraint("Vertical", 6))
sketch15.addConstraint(Sketcher.Constraint("Equal", 1, 2))
sketch15.addConstraint(Sketcher.Constraint("Equal", 2, 7))
sketch15.addConstraint(Sketcher.Constraint("Equal", 7, 8))
sketch15.addConstraint(Sketcher.Constraint("Horizontal", 0, 3, 1, 3))
sketch15.addConstraint(Sketcher.Constraint("Horizontal", 1, 3, 7, 3))
sketch15.addConstraint(Sketcher.Constraint("Vertical", 0, 3, 2, 3))
sketch15.addConstraint(Sketcher.Constraint("Vertical", 2, 3, 8, 3))
sketch15.addConstraint(Sketcher.Constraint("Equal", 5, 4))
sketch15.addConstraint(Sketcher.Constraint("Diameter", 0, 45.0))
sketch15.addConstraint(Sketcher.Constraint("Diameter", 1, 2.9))
sketch15.addConstraint(Sketcher.Constraint("DistanceX", 3, 2, 3, 1, 14.9))
sketch15.addConstraint(Sketcher.Constraint("DistanceX", -1, 1, 5, 2, 100.0))
sketch15.addConstraint(Sketcher.Constraint("DistanceX", 1, 3, 7, 3, 35.0))
sketch15.addConstraint(Sketcher.Constraint("DistanceY", 2, 3, 8, 3, 35.0))
sketch15.addConstraint(Sketcher.Constraint("DistanceY", -1, 1, 0, 3, 49.7))
sketch15.addConstraint(Sketcher.Constraint("DistanceY", -1, 1, 2, 3, 32.2))
sketch15.addConstraint(Sketcher.Constraint("DistanceX", 1, 3, 0, 3, 17.5))
sketch15.addConstraint(Sketcher.Constraint("DistanceX", -1, 1, 0, 3, 92.55))
sketch15.addConstraint(Sketcher.Constraint("DistanceY", -1, 1, 3, 2, 57.15))
pad7 = body2.newObject("PartDesign::Pad", "Pad006")
pad7.Profile = sketch15
pad7.Length = 3
body.AllowCompound = True
doc.recompute()

boolean = body.newObject("PartDesign::Boolean", "Boolean")
boolean.Type = "Fuse"
boolean.addObjects([body2])

sketch16 = body.newObject("Sketcher::SketchObject", "Sketch015")
sketch16.AttachmentSupport = (doc.getObject("XZ_Plane"), [""])
sketch16.MapMode = "FlatFace"
sketch16.addGeometry(Part.ArcOfCircle(Part.Circle(V(93, 50, 0), V(0, 0, 1), 22), math.radians(176), math.radians(240)), False)
sketch16.addGeometry(Part.LineSegment(V(81, 30, 0), V(39, 7, 0)), False)
sketch16.addGeometry(Part.ArcOfCircle(Part.Circle(V(0, 0, 0), V(0, 0, 1), 40), math.radians(11), math.radians(46)), False)
sketch16.addGeometry(Part.LineSegment(V(28, 29, 0), V(70, 51, 0)), False)
sketch16.addConstraint(Sketcher.Constraint("Coincident", 0, 2, 1, 1))
sketch16.addConstraint(Sketcher.Constraint("Coincident", 1, 2, 2, 1))
sketch16.addConstraint(Sketcher.Constraint("Coincident", 2, 2, 3, 1))
sketch16.addConstraint(Sketcher.Constraint("Coincident", 3, 2, 0, 1))
sketch16.addConstraint(Sketcher.Constraint("Coincident", 2, 3, -1, 1))
sketch16.addConstraint(Sketcher.Constraint("Parallel", 1, 3))
sketch16.addConstraint(Sketcher.Constraint("Equal", 1, 3))
sketch16.addConstraint(Sketcher.Constraint("Radius", 2, 40.0))
sketch16.addConstraint(Sketcher.Constraint("Radius", 0, 22.5))
sketch16.addConstraint(Sketcher.Constraint("DistanceY", -1, 1, 0, 3, 49.7))
sketch16.addConstraint(Sketcher.Constraint("DistanceX", -1, 1, 0, 3, 92.55))
sketch16.addConstraint(Sketcher.Constraint("DistanceX", -1, 1, 1, 2, 39.294299))
sketch16.addConstraint(Sketcher.Constraint("DistanceY", -1, 1, 3, 2, 51.2675))
pad8 = body.newObject("PartDesign::Pad", "Pad007")
pad8.Profile = sketch16
pad8.Length = 3
pad8.Reversed = True

sketch17 = body.newObject("Sketcher::SketchObject", "Sketch016")
sketch17.AttachmentSupport = (doc.getObject("XZ_Plane"), [""])
sketch17.MapMode = "FlatFace"
sketch17.AttachmentOffset = App.Placement(V(0, 0, -3), App.Rotation())
sketch17.addGeometry(Part.LineSegment(V(81, 30, 0), V(39, 7, 0)), False)
sketch17.addGeometry(Part.LineSegment(V(39, 7, 0), V(85, 42, 0)), False)
sketch17.addGeometry(Part.LineSegment(V(85, 42, 0), V(114, 42, 0)), False)
sketch17.addGeometry(Part.ArcOfCircle(Part.Circle(V(93, 50, 0), V(0, 0, 1), 22), math.radians(-120), math.radians(-19)), False)
sketch17.addConstraint(Sketcher.Constraint("Coincident", 0, 2, 1, 1))
sketch17.addConstraint(Sketcher.Constraint("Coincident", 1, 2, 2, 1))
sketch17.addConstraint(Sketcher.Constraint("Coincident", 2, 2, 3, 2))
sketch17.addConstraint(Sketcher.Constraint("Coincident", 3, 1, 0, 1))
sketch17.addConstraint(Sketcher.Constraint("Horizontal", 2))
sketch17.addConstraint(Sketcher.Constraint("Radius", 3, 22.5))
sketch17.addConstraint(Sketcher.Constraint("DistanceY", -1, 1, 3, 3, 49.7))
sketch17.addConstraint(Sketcher.Constraint("DistanceX", -1, 1, 1, 2, 85.1))
sketch17.addConstraint(Sketcher.Constraint("DistanceX", -1, 1, 3, 3, 92.55))
sketch17.addConstraint(Sketcher.Constraint("DistanceY", -1, 1, 1, 2, 42.25))
sketch17.addConstraint(Sketcher.Constraint("DistanceX", -1, 1, 0, 2, 39.294299))
sketch17.addConstraint(Sketcher.Constraint("DistanceX", 3, 1, 2, 2, 32.3216))
sketch17.addConstraint(Sketcher.Constraint("Distance", 0, 47.859994))
pocket9 = body.newObject("PartDesign::Pocket", "Pocket008")
pocket9.Profile = sketch17
pocket9.Type = "ThroughAll"
pocket9.Reversed = True

sketch18 = body.newObject("Sketcher::SketchObject", "Sketch017")
sketch18.AttachmentSupport = (doc.getObject("XZ_Plane"), [""])
sketch18.MapMode = "FlatFace"
sketch18.AttachmentOffset = App.Placement(V(0, 0, -3), App.Rotation())
add_polygon(sketch18, [(85, 42), (114, 42), (100, 37), (79, 37)])
sketch18.addConstraint(Sketcher.Constraint("Horizontal", 0))
sketch18.addConstraint(Sketcher.Constraint("Horizontal", 2))
sketch18.addConstraint(Sketcher.Constraint("DistanceX", -1, 1, 1, 2, 100.0))
sketch18.addConstraint(Sketcher.Constraint("DistanceY", 1, 2, 0, 2, 5.0))
sketch18.addConstraint(Sketcher.Constraint("DistanceX", -1, 1, 3, 2, 85.1))
sketch18.addConstraint(Sketcher.Constraint("DistanceY", -1, 1, 0, 2, 42.25))
sketch18.addConstraint(Sketcher.Constraint("Distance", 1, 14.659838))
sketch18.addConstraint(Sketcher.Constraint("Distance", 3, 8.269782))
pad9 = body.newObject("PartDesign::Pad", "Pad008")
pad9.Profile = sketch18
pad9.Length = 3

sketch19 = body.newObject("Sketcher::SketchObject", "Sketch018")
sketch19.AttachmentSupport = (doc.getObject("XZ_Plane"), [""])
sketch19.MapMode = "FlatFace"
sketch19.addGeometry(Part.ArcOfCircle(Part.Circle(V(0, 0, 0), V(0, 0, 1), 40), math.radians(72), math.radians(109)), False)
sketch19.addGeometry(Part.LineSegment(V(-13, 38, 0), V(85, 71, 0)), False)
sketch19.addGeometry(Part.ArcOfCircle(Part.Circle(V(93, 50, 0), V(0, 0, 1), 23), math.radians(109), math.radians(159)), False)
sketch19.addGeometry(Part.LineSegment(V(72, 58, 0), V(13, 38, 0)), False)
sketch19.addConstraint(Sketcher.Constraint("Tangent", 0, 2, 1, 1))
sketch19.addConstraint(Sketcher.Constraint("Tangent", 1, 2, 2, 1))
sketch19.addConstraint(Sketcher.Constraint("Coincident", 2, 2, 3, 1))
sketch19.addConstraint(Sketcher.Constraint("Coincident", 3, 2, 0, 1))
sketch19.addConstraint(Sketcher.Constraint("Coincident", 0, 3, -1, 1))
sketch19.addConstraint(Sketcher.Constraint("Parallel", 1, 3))
sketch19.addConstraint(Sketcher.Constraint("Radius", 0, 40.0))
sketch19.addConstraint(Sketcher.Constraint("Radius", 2, 22.5))
sketch19.addConstraint(Sketcher.Constraint("DistanceY", -1, 1, 2, 3, 49.7))
sketch19.addConstraint(Sketcher.Constraint("DistanceX", -1, 1, 2, 3, 92.55))
sketch19.addConstraint(Sketcher.Constraint("DistanceY", -1, 1, 2, 2, 57.937999))
pad10 = body.newObject("PartDesign::Pad", "Pad009")
pad10.Profile = sketch19
pad10.Length = 3
pad10.Reversed = True
doc.recompute()

fillet3 = body.newObject("PartDesign::Fillet", "Fillet002")
fillet3.Base = (pad10, edges_at(pad10, [
    (12.509, 1.5, 37.994),
    (71.612, 1.5, 57.938),
    (27.94, 1.5, 28.625),
    (70.105, 1.5, 51.267),
]))
fillet3.Radius = 2
doc.recompute()

fillet4 = body.newObject("PartDesign::Fillet", "Fillet003")
fillet4.Base = (fillet3, edges_at(fillet3, [
    (113.781, 1.5, 42.25),
    (78.513, 1.5, 37.25),
    (100, 1.5, 37.25),
    (39.294, 1.5, 7.481),
]))
fillet4.Radius = 10

sketch20 = body.newObject("Sketcher::SketchObject", "Sketch019")
sketch20.AttachmentSupport = (doc.getObject("XZ_Plane"), [""])
sketch20.MapMode = "FlatFace"
sketch20.AttachmentOffset = App.Placement(V(0, 0, -3), App.Rotation())
sketch20.addGeometry(Part.Circle(V(85.1, 42.2, 0), V(0, 0, 1), 1.6), False)
sketch20.addGeometry(Part.Circle(V(100, 42.2, 0), V(0, 0, 1), 1.6), False)
sketch20.addGeometry(Part.Circle(V(85.1, 57.1, 0), V(0, 0, 1), 1.6), False)
sketch20.addGeometry(Part.Circle(V(100, 57.1, 0), V(0, 0, 1), 1.6), False)
sketch20.addConstraint(Sketcher.Constraint("Equal", 0, 1))
sketch20.addConstraint(Sketcher.Constraint("Equal", 1, 2))
sketch20.addConstraint(Sketcher.Constraint("Equal", 2, 3))
sketch20.addConstraint(Sketcher.Constraint("Horizontal", 0, 3, 1, 3))
sketch20.addConstraint(Sketcher.Constraint("Horizontal", 2, 3, 3, 3))
sketch20.addConstraint(Sketcher.Constraint("Vertical", 0, 3, 2, 3))
sketch20.addConstraint(Sketcher.Constraint("Vertical", 1, 3, 3, 3))
sketch20.addConstraint(Sketcher.Constraint("Diameter", 0, 3.2))
sketch20.addConstraint(Sketcher.Constraint("DistanceX", -1, 1, 1, 3, 100.0))
sketch20.addConstraint(Sketcher.Constraint("DistanceX", -1, 1, 0, 3, 85.1))
sketch20.addConstraint(Sketcher.Constraint("DistanceY", 0, 3, 2, 3, 14.9))
sketch20.addConstraint(Sketcher.Constraint("DistanceY", -1, 1, 0, 3, 42.25))
pocket10 = body.newObject("PartDesign::Pocket", "Pocket009")
pocket10.Profile = sketch20
pocket10.Type = "ThroughAll"
pocket10.Reversed = True

doc.recompute()
